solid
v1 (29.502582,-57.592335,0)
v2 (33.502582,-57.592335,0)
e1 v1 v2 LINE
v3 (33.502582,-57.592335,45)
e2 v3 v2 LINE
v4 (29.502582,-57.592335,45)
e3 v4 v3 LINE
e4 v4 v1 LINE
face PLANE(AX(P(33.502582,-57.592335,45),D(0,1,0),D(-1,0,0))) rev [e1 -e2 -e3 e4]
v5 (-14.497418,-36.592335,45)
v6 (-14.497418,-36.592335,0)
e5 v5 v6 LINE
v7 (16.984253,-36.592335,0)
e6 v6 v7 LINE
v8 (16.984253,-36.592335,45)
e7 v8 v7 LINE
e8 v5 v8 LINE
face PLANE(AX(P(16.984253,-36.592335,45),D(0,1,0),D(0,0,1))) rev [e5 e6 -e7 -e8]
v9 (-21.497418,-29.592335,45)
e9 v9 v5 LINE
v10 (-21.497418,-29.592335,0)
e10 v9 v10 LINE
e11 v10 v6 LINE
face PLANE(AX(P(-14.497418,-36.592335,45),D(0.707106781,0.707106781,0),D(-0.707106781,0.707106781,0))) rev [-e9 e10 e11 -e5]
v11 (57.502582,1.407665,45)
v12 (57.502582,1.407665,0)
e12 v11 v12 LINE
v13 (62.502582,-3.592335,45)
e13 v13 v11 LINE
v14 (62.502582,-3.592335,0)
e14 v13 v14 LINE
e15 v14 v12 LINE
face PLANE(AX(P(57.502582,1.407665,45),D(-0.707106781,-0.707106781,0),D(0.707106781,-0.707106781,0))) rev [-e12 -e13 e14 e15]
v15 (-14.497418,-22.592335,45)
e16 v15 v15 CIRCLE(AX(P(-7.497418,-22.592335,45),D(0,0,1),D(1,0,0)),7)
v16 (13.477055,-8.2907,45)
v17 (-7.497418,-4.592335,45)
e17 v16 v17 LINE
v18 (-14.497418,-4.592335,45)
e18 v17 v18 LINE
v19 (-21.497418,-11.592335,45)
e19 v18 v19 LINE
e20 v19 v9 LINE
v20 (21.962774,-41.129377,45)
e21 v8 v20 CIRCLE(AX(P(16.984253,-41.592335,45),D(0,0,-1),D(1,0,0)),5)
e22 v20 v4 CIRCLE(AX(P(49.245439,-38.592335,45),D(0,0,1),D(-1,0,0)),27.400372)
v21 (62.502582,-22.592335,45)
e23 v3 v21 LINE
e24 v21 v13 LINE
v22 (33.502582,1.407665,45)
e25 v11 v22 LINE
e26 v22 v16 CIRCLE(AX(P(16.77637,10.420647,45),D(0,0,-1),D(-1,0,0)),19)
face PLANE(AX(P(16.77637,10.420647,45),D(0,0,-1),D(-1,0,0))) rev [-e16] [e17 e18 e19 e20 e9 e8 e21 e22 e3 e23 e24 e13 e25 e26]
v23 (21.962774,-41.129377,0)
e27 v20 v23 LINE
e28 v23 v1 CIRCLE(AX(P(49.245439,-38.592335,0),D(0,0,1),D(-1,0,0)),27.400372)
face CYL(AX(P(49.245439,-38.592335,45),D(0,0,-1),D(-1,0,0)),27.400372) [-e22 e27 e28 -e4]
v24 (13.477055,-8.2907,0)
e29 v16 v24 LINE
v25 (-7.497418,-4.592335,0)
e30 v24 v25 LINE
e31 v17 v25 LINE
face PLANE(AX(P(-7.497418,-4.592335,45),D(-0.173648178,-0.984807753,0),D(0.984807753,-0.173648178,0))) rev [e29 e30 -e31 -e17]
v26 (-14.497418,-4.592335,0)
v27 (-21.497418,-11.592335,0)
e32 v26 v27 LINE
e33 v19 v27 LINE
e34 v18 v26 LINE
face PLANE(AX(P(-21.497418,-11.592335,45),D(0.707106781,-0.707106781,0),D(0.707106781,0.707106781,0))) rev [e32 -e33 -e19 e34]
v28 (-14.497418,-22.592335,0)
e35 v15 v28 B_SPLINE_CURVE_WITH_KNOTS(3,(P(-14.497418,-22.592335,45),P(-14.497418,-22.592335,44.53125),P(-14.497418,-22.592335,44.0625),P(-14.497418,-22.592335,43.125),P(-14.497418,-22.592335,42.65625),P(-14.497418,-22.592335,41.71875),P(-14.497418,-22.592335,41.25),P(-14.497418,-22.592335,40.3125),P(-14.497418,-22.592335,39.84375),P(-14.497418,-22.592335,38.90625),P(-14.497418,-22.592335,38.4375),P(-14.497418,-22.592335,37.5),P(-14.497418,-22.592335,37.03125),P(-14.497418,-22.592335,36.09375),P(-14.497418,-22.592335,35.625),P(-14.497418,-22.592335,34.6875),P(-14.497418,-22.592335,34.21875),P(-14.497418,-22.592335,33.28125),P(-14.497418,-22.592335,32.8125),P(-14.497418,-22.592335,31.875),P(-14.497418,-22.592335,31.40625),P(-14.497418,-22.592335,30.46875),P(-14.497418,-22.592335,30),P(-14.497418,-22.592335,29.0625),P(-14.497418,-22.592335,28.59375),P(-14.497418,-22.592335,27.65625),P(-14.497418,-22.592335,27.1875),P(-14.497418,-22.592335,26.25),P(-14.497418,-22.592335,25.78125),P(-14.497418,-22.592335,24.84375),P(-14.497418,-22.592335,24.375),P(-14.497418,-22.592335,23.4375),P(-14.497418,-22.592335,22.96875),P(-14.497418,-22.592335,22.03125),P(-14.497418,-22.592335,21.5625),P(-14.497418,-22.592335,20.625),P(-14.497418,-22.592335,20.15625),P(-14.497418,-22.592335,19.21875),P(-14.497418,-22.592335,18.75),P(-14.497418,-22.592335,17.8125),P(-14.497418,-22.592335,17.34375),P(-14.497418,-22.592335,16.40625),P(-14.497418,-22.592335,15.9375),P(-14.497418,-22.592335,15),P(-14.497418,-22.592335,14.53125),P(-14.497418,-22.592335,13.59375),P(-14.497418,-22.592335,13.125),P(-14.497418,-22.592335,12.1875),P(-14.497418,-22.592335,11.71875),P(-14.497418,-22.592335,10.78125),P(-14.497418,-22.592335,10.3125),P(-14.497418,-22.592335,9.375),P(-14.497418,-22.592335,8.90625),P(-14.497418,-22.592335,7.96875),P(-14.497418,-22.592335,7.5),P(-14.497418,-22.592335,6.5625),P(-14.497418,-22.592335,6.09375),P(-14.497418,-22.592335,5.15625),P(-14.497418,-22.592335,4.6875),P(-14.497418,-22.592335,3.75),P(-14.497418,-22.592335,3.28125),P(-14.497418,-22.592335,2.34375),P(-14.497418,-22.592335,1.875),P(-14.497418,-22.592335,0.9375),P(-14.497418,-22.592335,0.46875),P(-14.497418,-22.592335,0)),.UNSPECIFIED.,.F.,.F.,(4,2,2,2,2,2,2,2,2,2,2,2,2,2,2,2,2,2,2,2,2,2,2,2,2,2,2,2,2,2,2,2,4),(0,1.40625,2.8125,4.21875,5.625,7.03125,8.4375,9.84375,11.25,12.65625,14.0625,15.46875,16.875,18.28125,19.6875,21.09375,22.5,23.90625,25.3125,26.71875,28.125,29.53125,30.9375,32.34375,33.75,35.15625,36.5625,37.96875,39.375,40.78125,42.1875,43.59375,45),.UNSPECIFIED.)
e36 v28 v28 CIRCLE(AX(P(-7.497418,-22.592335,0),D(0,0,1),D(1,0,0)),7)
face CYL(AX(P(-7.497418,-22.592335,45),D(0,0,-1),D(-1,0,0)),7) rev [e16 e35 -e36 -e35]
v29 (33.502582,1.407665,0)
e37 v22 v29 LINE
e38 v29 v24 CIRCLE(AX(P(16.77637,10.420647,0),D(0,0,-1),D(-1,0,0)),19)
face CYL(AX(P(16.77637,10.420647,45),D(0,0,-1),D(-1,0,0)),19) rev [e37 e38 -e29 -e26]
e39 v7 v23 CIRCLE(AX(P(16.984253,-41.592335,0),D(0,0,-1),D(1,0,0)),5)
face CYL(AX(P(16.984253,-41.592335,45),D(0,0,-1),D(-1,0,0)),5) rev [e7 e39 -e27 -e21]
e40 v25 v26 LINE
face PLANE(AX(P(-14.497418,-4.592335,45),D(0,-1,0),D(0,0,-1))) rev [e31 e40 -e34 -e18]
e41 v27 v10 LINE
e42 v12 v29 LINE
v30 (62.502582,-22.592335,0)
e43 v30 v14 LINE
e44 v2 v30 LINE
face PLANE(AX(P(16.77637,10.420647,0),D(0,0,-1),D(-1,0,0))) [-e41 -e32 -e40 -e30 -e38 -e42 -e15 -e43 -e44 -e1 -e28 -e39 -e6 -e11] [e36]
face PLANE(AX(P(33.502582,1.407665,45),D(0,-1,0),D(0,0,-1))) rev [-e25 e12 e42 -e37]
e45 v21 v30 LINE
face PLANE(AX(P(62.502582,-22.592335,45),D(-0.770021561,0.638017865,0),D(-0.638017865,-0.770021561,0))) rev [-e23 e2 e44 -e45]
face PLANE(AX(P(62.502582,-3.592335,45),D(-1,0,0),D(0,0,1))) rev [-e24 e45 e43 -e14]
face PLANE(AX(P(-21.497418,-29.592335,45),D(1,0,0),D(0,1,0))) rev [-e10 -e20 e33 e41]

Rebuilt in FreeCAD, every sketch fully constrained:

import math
import FreeCAD as App
import Part
import Sketcher
Q = App.Units.Quantity

doc = App.newDocument("Part")
body = doc.addObject("PartDesign::Body", "Body")

sketch1 = doc.addObject("Sketcher::SketchObject", "Sketch")
body.addObject(sketch1)
sketch1.AttachmentSupport = (doc.XY_Plane, [""])
sketch1.MapMode = "FlatFace"
sketch1.addGeometry(Part.LineSegment(App.Vector(57.5, 1.4, 0), App.Vector(33.5, 1.4, 0)), False)
sketch1.addGeometry(Part.ArcOfCircle(Part.Circle(App.Vector(16.8, 10.4, 0), App.Vector(0, 0, 1), 19), math.radians(-100), math.radians(-28)), False)
sketch1.addGeometry(Part.LineSegment(App.Vector(13.5, -8.3, 0), App.Vector(-7.5, -4.6, 0)), False)
sketch1.addGeometry(Part.LineSegment(App.Vector(-7.5, -4.6, 0), App.Vector(-14.5, -4.6, 0)), False)
sketch1.addGeometry(Part.LineSegment(App.Vector(-14.5, -4.6, 0), App.Vector(-21.5, -11.6, 0)), False)
sketch1.addGeometry(Part.LineSegment(App.Vector(-21.5, -11.6, 0), App.Vector(-21.5, -29.6, 0)), False)
sketch1.addGeometry(Part.LineSegment(App.Vector(-21.5, -29.6, 0), App.Vector(-14.5, -36.6, 0)), False)
sketch1.addGeometry(Part.LineSegment(App.Vector(-14.5, -36.6, 0), App.Vector(17, -36.6, 0)), False)
sketch1.addGeometry(Part.ArcOfCircle(Part.Circle(App.Vector(17, -41.6, 0), App.Vector(0, 0, 1), 5), math.radians(5), math.radians(90)), False)
sketch1.addGeometry(Part.ArcOfCircle(Part.Circle(App.Vector(49.2, -38.6, 0), App.Vector(0, 0, 1), 27.4), math.radians(-175), math.radians(-136)), False)
sketch1.addGeometry(Part.LineSegment(App.Vector(29.5, -57.6, 0), App.Vector(33.5, -57.6, 0)), False)
sketch1.addGeometry(Part.LineSegment(App.Vector(33.5, -57.6, 0), App.Vector(62.5, -22.6, 0)), False)
sketch1.addGeometry(Part.LineSegment(App.Vector(62.5, -22.6, 0), App.Vector(62.5, -3.6, 0)), False)
sketch1.addGeometry(Part.LineSegment(App.Vector(62.5, -3.6, 0), App.Vector(57.5, 1.4, 0)), False)
sketch1.addGeometry(Part.Circle(App.Vector(-7.5, -22.6, 0), App.Vector(0, 0, 1), 7), False)
sketch1.addConstraint(Sketcher.Constraint("Coincident", 0, 2, 1, 2))
sketch1.addConstraint(Sketcher.Constraint("Tangent", 1, 1, 2, 1))
sketch1.addConstraint(Sketcher.Constraint("Coincident", 2, 2, 3, 1))
sketch1.addConstraint(Sketcher.Constraint("Coincident", 3, 2, 4, 1))
sketch1.addConstraint(Sketcher.Constraint("Coincident", 4, 2, 5, 1))
sketch1.addConstraint(Sketcher.Constraint("Coincident", 5, 2, 6, 1))
sketch1.addConstraint(Sketcher.Constraint("Coincident", 6, 2, 7, 1))
sketch1.addConstraint(Sketcher.Constraint("Tangent", 7, 2, 8, 2))
sketch1.addConstraint(Sketcher.Constraint("Tangent", 8, 1, 9, 1))
sketch1.addConstraint(Sketcher.Constraint("Coincident", 9, 2, 10, 1))
sketch1.addConstraint(Sketcher.Constraint("Coincident", 10, 2, 11, 1))
sketch1.addConstraint(Sketcher.Constraint("Coincident", 11, 2, 12, 1))
sketch1.addConstraint(Sketcher.Constraint("Coincident", 12, 2, 13, 1))
sketch1.addConstraint(Sketcher.Constraint("Coincident", 13, 2, 0, 1))
sketch1.addConstraint(Sketcher.Constraint("Horizontal", 0))
sketch1.addConstraint(Sketcher.Constraint("Horizontal", 3))
sketch1.addConstraint(Sketcher.Constraint("Vertical", 5))
sketch1.addConstraint(Sketcher.Constraint("Horizontal", 7))
sketch1.addConstraint(Sketcher.Constraint("Horizontal", 10))
sketch1.addConstraint(Sketcher.Constraint("Vertical", 12))
sketch1.addConstraint(Sketcher.Constraint("Perpendicular", 4, 6))
sketch1.addConstraint(Sketcher.Constraint("Parallel", 6, 13))
sketch1.addConstraint(Sketcher.Constraint("Horizontal", 14, 3, 11, 2))
sketch1.addConstraint(Sketcher.Constraint("Vertical", 14, 3, 2, 2))
sketch1.addConstraint(Sketcher.Constraint("Vertical", 3, 2, 6, 2))
sketch1.addConstraint(Sketcher.Constraint("Vertical", 0, 2, 10, 2))
sketch1.addConstraint(Sketcher.Constraint("Equal", 4, 6))
sketch1.addConstraint(Sketcher.Constraint("Diameter", 14, Q("14 mm")))
sketch1.addConstraint(Sketcher.Constraint("Radius", 1, Q("19 mm")))
sketch1.addConstraint(Sketcher.Constraint("Radius", 8, Q("5 mm")))
sketch1.addConstraint(Sketcher.Constraint("DistanceX", 0, 2, 0, 1, Q("24 mm")))
sketch1.addConstraint(Sketcher.Constraint("DistanceX", 3, 2, 3, 1, Q("7 mm")))
sketch1.addConstraint(Sketcher.Constraint("DistanceX", 10, 1, 10, 2, Q("4 mm")))
sketch1.addConstraint(Sketcher.Constraint("DistanceY", 5, 2, 5, 1, Q("18 mm")))
sketch1.addConstraint(Sketcher.Constraint("DistanceY", 12, 1, 12, 2, Q("19 mm")))
sketch1.addConstraint(Sketcher.Constraint("Angle", 2, Q("170 deg")))
sketch1.addConstraint(Sketcher.Constraint("DistanceY", 8, 3, 9, 3, Q("3 mm")))
sketch1.addConstraint(Sketcher.Constraint("DistanceY", 8, 3, 14, 3, Q("19 mm")))
sketch1.addConstraint(Sketcher.Constraint("DistanceY", 9, 3, 0, 2, Q("40 mm")))
sketch1.addConstraint(Sketcher.Constraint("DistanceX", 14, 3, 0, 2, Q("41 mm")))
sketch1.addConstraint(Sketcher.Constraint("DistanceY", 14, 3, 2, 2, Q("18 mm")))
sketch1.addConstraint(Sketcher.Constraint("DistanceY", 9, 2, 8, 3, Q("16 mm")))
sketch1.addConstraint(Sketcher.Constraint("Radius", 9, Q("27.400372 mm")))
sketch1.addConstraint(Sketcher.Constraint("DistanceY", 1, 1, -1, 1, Q("8.2907 mm")))
sketch1.addConstraint(Sketcher.Constraint("DistanceX", -1, 1, 1, 3, Q("16.77637 mm")))
pad1 = doc.addObject("PartDesign::Pad", "Pad")
body.addObject(pad1)
pad1.Profile = sketch1
pad1.Length = 45

doc.recompute()
